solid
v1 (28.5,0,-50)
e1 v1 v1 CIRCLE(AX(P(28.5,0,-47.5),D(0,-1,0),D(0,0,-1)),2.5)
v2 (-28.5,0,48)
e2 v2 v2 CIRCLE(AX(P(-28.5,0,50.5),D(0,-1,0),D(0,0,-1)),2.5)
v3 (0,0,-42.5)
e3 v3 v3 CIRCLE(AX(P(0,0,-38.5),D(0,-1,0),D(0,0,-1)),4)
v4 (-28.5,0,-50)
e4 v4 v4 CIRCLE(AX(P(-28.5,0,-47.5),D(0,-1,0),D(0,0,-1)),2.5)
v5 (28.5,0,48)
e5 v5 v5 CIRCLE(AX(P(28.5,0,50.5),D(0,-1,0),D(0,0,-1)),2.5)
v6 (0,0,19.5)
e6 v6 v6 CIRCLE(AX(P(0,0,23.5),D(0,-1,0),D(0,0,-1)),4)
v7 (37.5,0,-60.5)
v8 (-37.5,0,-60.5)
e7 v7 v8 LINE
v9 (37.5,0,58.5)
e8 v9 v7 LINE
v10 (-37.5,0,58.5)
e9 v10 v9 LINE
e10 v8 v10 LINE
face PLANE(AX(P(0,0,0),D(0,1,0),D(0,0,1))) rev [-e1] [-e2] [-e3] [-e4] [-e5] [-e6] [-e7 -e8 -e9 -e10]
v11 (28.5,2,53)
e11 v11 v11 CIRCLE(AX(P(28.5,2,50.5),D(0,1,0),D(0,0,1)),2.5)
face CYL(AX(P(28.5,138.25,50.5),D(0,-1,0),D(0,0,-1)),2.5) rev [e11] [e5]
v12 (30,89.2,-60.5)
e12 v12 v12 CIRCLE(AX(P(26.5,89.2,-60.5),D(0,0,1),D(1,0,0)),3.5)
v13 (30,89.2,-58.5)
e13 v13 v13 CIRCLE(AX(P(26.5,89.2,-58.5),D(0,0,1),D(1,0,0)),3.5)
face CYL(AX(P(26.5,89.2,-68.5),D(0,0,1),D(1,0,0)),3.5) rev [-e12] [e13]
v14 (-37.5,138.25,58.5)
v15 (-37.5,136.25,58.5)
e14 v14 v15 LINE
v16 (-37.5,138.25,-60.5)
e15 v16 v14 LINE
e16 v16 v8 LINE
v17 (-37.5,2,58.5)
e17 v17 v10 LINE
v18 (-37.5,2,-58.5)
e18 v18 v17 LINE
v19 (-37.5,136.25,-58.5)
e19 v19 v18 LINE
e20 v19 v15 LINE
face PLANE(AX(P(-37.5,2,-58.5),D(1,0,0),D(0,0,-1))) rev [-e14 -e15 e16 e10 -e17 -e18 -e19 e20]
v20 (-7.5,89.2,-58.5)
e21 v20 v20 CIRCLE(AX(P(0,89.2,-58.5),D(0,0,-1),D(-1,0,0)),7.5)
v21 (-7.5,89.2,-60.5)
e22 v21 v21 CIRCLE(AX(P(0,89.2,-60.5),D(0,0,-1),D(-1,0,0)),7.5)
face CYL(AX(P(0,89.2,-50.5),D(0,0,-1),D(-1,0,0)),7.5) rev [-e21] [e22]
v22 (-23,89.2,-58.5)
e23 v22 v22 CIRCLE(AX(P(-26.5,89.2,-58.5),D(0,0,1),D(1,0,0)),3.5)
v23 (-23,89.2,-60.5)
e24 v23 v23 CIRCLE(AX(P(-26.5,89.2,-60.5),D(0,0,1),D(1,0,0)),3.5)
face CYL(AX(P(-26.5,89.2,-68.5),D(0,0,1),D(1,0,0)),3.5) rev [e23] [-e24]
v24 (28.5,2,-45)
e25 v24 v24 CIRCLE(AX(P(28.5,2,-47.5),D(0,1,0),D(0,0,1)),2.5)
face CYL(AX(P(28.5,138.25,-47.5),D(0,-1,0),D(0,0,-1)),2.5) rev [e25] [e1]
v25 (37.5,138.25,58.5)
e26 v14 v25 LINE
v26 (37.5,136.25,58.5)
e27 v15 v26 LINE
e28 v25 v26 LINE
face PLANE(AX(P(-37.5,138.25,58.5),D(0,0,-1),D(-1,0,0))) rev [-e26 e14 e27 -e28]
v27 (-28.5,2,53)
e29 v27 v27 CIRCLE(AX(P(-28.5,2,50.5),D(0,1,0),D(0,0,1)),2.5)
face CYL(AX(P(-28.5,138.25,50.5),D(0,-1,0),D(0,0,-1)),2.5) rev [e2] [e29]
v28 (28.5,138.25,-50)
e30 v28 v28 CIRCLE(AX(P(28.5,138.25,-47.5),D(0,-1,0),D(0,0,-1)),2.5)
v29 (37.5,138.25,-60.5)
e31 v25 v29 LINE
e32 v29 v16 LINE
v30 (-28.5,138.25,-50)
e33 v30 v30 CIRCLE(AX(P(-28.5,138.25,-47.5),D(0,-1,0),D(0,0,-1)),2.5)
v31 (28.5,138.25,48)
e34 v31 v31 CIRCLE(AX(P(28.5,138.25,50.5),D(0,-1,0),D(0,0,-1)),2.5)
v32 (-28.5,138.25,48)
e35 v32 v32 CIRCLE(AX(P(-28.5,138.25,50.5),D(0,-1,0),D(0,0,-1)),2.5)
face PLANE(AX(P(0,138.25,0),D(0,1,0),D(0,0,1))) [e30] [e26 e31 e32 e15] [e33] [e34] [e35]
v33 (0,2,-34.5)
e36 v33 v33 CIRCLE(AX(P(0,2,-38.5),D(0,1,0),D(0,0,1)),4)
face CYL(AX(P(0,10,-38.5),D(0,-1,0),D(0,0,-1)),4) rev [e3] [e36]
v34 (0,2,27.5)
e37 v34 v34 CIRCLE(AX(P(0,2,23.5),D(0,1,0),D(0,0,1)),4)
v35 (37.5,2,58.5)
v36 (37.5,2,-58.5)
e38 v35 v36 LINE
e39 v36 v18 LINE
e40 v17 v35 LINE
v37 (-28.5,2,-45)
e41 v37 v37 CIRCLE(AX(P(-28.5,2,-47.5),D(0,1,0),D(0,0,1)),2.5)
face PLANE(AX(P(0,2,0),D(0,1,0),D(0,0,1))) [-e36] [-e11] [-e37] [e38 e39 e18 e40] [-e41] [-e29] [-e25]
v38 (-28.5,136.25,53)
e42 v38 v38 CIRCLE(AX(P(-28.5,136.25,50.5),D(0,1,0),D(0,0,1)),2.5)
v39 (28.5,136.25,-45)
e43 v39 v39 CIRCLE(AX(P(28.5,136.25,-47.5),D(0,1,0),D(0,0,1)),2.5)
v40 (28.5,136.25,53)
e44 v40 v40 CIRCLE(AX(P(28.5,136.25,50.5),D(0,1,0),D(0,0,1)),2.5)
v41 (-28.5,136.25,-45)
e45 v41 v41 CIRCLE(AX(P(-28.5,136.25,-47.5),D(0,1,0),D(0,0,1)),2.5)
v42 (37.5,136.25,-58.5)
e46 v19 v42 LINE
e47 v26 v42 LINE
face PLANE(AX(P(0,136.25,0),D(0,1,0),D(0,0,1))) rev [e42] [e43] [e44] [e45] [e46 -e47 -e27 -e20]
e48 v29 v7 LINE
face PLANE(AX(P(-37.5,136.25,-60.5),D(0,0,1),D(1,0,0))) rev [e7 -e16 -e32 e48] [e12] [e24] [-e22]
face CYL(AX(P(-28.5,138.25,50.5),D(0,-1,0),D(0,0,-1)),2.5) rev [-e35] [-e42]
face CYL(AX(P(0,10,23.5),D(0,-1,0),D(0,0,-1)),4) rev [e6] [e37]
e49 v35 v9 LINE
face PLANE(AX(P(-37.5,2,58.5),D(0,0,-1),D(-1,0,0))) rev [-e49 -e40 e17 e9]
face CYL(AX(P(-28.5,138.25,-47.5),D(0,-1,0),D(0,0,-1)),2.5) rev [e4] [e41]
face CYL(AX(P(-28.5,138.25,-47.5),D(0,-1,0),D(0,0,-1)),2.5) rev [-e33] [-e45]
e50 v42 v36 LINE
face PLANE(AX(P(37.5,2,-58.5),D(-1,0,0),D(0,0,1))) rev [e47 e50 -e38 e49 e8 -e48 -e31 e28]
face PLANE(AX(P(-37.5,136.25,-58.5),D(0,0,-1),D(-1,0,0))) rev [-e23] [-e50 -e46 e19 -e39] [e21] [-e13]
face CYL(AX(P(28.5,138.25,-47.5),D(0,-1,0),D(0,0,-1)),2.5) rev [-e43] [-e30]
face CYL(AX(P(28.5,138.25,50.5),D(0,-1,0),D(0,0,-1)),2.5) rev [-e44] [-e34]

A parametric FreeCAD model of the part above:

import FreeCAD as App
import Part
import Sketcher
from FreeCAD import Vector
Q = App.Units.Quantity


def add_polygon(sketch, points):
    """Adds a closed chain of lines whose ends are joined by coincident constraints."""
    first, n = sketch.GeometryCount, len(points)
    for a, b in zip(points, points[1:] + points[:1]):
        sketch.addGeometry(Part.LineSegment(App.Vector(*a, 0), App.Vector(*b, 0)), False)
    for i in range(n):
        sketch.addConstraint(Sketcher.Constraint("Coincident", first + i, 2, first + (i + 1) % n, 1))

doc = App.newDocument("Part")
body = doc.addObject("PartDesign::Body", "Body")

# Sketch on XZ plane
sketch1 = body.newObject("Sketcher::SketchObject", "Sketch")
sketch1.AttachmentSupport = (doc.getObject("XZ_Plane"), [""])
sketch1.MapMode = "FlatFace"
add_polygon(sketch1, [(-38, -58), (-38, 58), (38, 58), (38, -58)])  # lines 0-3
sketch1.addConstraint([
    Sketcher.Constraint("Vertical", 0),
    Sketcher.Constraint("Horizontal", 1),
    Sketcher.Constraint("Vertical", 2),
    Sketcher.Constraint("Horizontal", 3),
    Sketcher.Constraint("Symmetric", 0, 2, 2, 2, -1, 1),
    Sketcher.Constraint("DistanceX", 1, 1, 1, 2, Q("75 mm")),
    Sketcher.Constraint("DistanceY", 0, 1, 0, 2, Q("117 mm")),
])
pad1 = body.newObject("PartDesign::Pad", "Pad")
pad1.Profile = sketch1
pad1.Length = 2
pad1.Reversed = True

# Sketch on XZ plane
sketch2 = body.newObject("Sketcher::SketchObject", "Sketch001")
sketch2.AttachmentSupport = (doc.getObject("XZ_Plane"), [""])
sketch2.MapMode = "FlatFace"
add_polygon(sketch2, [(-37.5, -60.5), (-37.5, -58.5), (37.5, -58.5), (37.5, -60.5)])  # lines 0-3
sketch2.addConstraint([
    Sketcher.Constraint("Vertical", 0),
    Sketcher.Constraint("Horizontal", 1),
    Sketcher.Constraint("Vertical", 2),
    Sketcher.Constraint("Horizontal", 3),
    Sketcher.Constraint("DistanceX", 1, 1, 1, 2, Q("75 mm")),
    Sketcher.Constraint("DistanceY", 0, 1, 0, 2, Q("2 mm")),
    Sketcher.Constraint("DistanceX", 0, 2, -1, 1, Q("37.5 mm")),
    Sketcher.Constraint("DistanceY", 0, 2, -1, 1, Q("58.5 mm")),
])
pad2 = body.newObject("PartDesign::Pad", "Pad001")
pad2.Profile = sketch2
pad2.Length = 136.25
pad2.Reversed = True

# Sketch on XZ plane
sketch3 = body.newObject("Sketcher::SketchObject", "Sketch002")
sketch3.AttachmentSupport = (doc.getObject("XZ_Plane"), [""])
sketch3.MapMode = "FlatFace"
sketch3.AttachmentOffset = App.Placement(Vector(0, 0, -136.25), App.Rotation())
add_polygon(sketch3, [(-38, -60), (-38, 58), (38, 58), (38, -60)])  # lines 0-3
sketch3.addConstraint([
    Sketcher.Constraint("Vertical", 0),
    Sketcher.Constraint("Horizontal", 1),
    Sketcher.Constraint("Vertical", 2),
    Sketcher.Constraint("Horizontal", 3),
    Sketcher.Constraint("DistanceX", 1, 1, 1, 2, Q("75 mm")),
    Sketcher.Constraint("DistanceY", 0, 1, 0, 2, Q("119 mm")),
    Sketcher.Constraint("DistanceX", 0, 2, -1, 1, Q("37.5 mm")),
    Sketcher.Constraint("DistanceY", -1, 1, 0, 2, Q("58.5 mm")),
])
pad3 = body.newObject("PartDesign::Pad", "Pad002")
pad3.Profile = sketch3
pad3.Length = 2
pad3.Reversed = True

# Sketch on XZ plane
sketch4 = body.newObject("Sketcher::SketchObject", "Sketch003")
sketch4.AttachmentSupport = (doc.getObject("XZ_Plane"), [""])
sketch4.MapMode = "FlatFace"
sketch4.addGeometry([
    Part.Circle(Vector(28.5, -47.5, 0), Vector(0, 0, 1), 2.5),
    Part.Circle(Vector(-28.5, -47.5, 0), Vector(0, 0, 1), 2.5),
    Part.Circle(Vector(28.5, 50.5, 0), Vector(0, 0, 1), 2.5),
    Part.Circle(Vector(-28.5, 50.5, 0), Vector(0, 0, 1), 2.5),
], False)
sketch4.addConstraint([
    Sketcher.Constraint("Equal", 0, 1),
    Sketcher.Constraint("Equal", 1, 2),
    Sketcher.Constraint("Equal", 2, 3),
    Sketcher.Constraint("Symmetric", 0, 3, 1, 3, -2),
    Sketcher.Constraint("Symmetric", 2, 3, 3, 3, -2),
    Sketcher.Constraint("Vertical", 0, 3, 2, 3),
    Sketcher.Constraint("Diameter", 0, Q("5 mm")),
    Sketcher.Constraint("DistanceX", 1, 3, 0, 3, Q("57 mm")),
    Sketcher.Constraint("DistanceY", 0, 3, 2, 3, Q("98 mm")),
    Sketcher.Constraint("DistanceY", 0, 3, -1, 1, Q("47.5 mm")),
])
pocket1 = body.newObject("PartDesign::Pocket", "Pocket")
pocket1.Profile = sketch4
pocket1.Type = "ThroughAll"

# Sketch on XY plane
sketch5 = body.newObject("Sketcher::SketchObject", "Sketch004")
sketch5.AttachmentSupport = (doc.getObject("XY_Plane"), [""])
sketch5.MapMode = "FlatFace"
sketch5.AttachmentOffset = App.Placement(Vector(0, 0, -60.5), App.Rotation())
sketch5.addGeometry(Part.Circle(Vector(0, 89, 0), Vector(0, 0, 1), 8), False)
sketch5.addConstraint([
    Sketcher.Constraint("PointOnObject", 0, 3, -2),
    Sketcher.Constraint("Diameter", 0, Q("15 mm")),
    Sketcher.Constraint("DistanceY", -1, 1, 0, 3, Q("89.2 mm")),
])
pocket2 = body.newObject("PartDesign::Pocket", "Pocket001")
pocket2.Profile = sketch5
pocket2.Length = 10
pocket2.Reversed = True

# Sketch on XY plane
sketch6 = body.newObject("Sketcher::SketchObject", "Sketch005")
sketch6.AttachmentSupport = (doc.getObject("XY_Plane"), [""])
sketch6.MapMode = "FlatFace"
sketch6.AttachmentOffset = App.Placement(Vector(0, 0, -58.5), App.Rotation())
sketch6.addGeometry([
    Part.Circle(Vector(26.5, 89.2, 0), Vector(0, 0, 1), 3.5),
    Part.Circle(Vector(-26.5, 89.2, 0), Vector(0, 0, 1), 3.5),
], False)
sketch6.addConstraint([
    Sketcher.Constraint("Equal", 0, 1),
    Sketcher.Constraint("Symmetric", 0, 3, 1, 3, -2),
    Sketcher.Constraint("Diameter", 0, Q("7 mm")),
    Sketcher.Constraint("DistanceX", 1, 3, 0, 3, Q("53 mm")),
    Sketcher.Constraint("DistanceY", -1, 1, 0, 3, Q("89.2 mm")),
])
pocket3 = body.newObject("PartDesign::Pocket", "Pocket002")
pocket3.Profile = sketch6
pocket3.Length = 10

# Sketch on XZ plane
sketch7 = body.newObject("Sketcher::SketchObject", "Sketch006")
sketch7.AttachmentSupport = (doc.getObject("XZ_Plane"), [""])
sketch7.MapMode = "FlatFace"
sketch7.addGeometry([
    Part.Circle(Vector(0, -38.5, 0), Vector(0, 0, 1), 4),
    Part.Circle(Vector(0, 23.5, 0), Vector(0, 0, 1), 4),
], False)
sketch7.addConstraint([
    Sketcher.Constraint("Equal", 0, 1),
    Sketcher.Constraint("PointOnObject", 0, 3, -2),
    Sketcher.Constraint("PointOnObject", 1, 3, -2),
    Sketcher.Constraint("Diameter", 0, Q("8 mm")),
    Sketcher.Constraint("DistanceY", 0, 3, 1, 3, Q("62 mm")),
    Sketcher.Constraint("DistanceY", 0, 3, -1, 1, Q("38.5 mm")),
])
pocket4 = body.newObject("PartDesign::Pocket", "Pocket003")
pocket4.Profile = sketch7
pocket4.Length = 10

doc.recompute()
